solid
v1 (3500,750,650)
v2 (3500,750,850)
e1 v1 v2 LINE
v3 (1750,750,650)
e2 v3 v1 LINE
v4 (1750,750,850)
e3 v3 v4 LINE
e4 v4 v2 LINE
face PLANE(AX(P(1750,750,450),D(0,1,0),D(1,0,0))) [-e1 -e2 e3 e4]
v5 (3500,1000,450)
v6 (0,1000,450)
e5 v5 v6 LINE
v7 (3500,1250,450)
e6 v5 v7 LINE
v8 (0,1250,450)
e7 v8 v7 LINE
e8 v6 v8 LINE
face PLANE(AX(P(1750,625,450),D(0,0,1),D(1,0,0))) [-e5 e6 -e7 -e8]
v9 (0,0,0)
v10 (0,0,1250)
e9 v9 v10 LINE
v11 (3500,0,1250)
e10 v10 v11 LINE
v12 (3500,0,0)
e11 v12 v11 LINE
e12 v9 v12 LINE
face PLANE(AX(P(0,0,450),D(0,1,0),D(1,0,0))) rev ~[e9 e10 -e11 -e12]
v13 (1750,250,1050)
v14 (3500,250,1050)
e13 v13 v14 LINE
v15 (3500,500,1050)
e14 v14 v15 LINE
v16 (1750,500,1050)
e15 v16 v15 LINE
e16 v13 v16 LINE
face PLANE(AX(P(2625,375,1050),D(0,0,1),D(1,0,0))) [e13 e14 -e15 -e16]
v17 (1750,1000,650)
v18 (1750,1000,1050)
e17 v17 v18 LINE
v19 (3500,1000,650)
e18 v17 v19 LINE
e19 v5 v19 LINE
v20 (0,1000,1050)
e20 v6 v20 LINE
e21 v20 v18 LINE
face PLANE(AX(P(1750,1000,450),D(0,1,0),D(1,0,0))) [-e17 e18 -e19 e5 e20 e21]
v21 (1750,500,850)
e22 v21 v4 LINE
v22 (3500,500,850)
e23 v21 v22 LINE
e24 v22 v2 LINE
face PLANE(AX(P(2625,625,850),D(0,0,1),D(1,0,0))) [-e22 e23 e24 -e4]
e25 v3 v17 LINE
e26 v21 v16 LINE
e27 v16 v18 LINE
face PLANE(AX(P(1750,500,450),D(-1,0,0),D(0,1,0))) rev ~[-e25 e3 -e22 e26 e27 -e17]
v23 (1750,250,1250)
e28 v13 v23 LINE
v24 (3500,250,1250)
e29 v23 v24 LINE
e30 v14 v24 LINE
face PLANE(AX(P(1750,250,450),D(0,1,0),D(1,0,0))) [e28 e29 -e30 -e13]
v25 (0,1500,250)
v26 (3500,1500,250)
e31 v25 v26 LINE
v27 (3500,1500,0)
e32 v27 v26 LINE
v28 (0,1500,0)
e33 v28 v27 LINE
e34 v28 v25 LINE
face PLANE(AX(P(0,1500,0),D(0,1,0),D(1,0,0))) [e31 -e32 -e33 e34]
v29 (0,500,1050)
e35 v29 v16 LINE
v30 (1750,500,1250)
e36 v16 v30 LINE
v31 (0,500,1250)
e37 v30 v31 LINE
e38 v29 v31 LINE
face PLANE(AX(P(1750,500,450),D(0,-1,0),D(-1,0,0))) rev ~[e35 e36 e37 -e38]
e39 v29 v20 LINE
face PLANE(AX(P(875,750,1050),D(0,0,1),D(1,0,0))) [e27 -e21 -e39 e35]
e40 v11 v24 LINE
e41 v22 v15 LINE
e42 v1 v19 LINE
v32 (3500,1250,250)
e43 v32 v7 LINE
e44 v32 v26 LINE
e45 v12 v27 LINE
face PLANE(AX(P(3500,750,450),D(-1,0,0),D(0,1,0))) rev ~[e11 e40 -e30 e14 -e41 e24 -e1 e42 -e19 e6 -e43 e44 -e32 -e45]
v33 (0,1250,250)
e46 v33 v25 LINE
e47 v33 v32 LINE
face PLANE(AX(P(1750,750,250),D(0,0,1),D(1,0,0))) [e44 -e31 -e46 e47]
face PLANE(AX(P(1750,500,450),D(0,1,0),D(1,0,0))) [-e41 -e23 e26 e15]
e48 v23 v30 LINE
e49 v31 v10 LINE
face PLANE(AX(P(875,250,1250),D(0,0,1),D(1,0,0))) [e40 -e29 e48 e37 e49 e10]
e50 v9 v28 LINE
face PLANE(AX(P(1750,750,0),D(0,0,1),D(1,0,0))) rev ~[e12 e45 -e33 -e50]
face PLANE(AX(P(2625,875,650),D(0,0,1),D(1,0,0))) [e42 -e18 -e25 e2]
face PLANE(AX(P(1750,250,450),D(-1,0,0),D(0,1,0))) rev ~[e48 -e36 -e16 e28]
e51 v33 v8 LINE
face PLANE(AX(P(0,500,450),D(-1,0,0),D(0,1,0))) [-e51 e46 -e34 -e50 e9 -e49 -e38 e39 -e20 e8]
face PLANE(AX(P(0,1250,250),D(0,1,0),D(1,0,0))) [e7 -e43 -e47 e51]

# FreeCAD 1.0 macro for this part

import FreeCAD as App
import Part
import Sketcher
Q = App.Units.Quantity

doc = App.newDocument("Part")
body = doc.addObject("PartDesign::Body", "Body")

sketch1 = body.newObject("Sketcher::SketchObject", "Sketch")
sketch1.AttachmentSupport = (doc.getObject("XY_Plane"), [""])
sketch1.MapMode = "FlatFace"
sketch1.addGeometry([
    Part.LineSegment(App.Vector(0, 1500, 0), App.Vector(0, 0, 0)),
    Part.LineSegment(App.Vector(0, 0, 0), App.Vector(3500, 0, 0)),
    Part.LineSegment(App.Vector(3500, 0, 0), App.Vector(3500, 1500, 0)),
    Part.LineSegment(App.Vector(3500, 1500, 0), App.Vector(0, 1500, 0)),
], False)
sketch1.addConstraint([
    Sketcher.Constraint("Coincident", 0, 2, 1, 1),
    Sketcher.Constraint("Coincident", 1, 2, 2, 1),
    Sketcher.Constraint("Coincident", 2, 2, 3, 1),
    Sketcher.Constraint("Coincident", 3, 2, 0, 1),
    Sketcher.Constraint("Vertical", 0),
    Sketcher.Constraint("Horizontal", 1),
    Sketcher.Constraint("Vertical", 2),
    Sketcher.Constraint("Horizontal", 3),
    Sketcher.Constraint("Coincident", 0, 2, -1, 1),
    Sketcher.Constraint("DistanceX", 1, 1, 1, 2, Q("3500 mm")),
    Sketcher.Constraint("DistanceY", 0, 2, 0, 1, Q("1500 mm")),
])
pad1 = body.newObject("PartDesign::Pad", "Pad")
pad1.Profile = sketch1
pad1.Length = 250

sketch2 = body.newObject("Sketcher::SketchObject", "Sketch001")
sketch2.AttachmentSupport = (doc.getObject("XY_Plane"), [""])
sketch2.MapMode = "FlatFace"
sketch2.AttachmentOffset = App.Placement(App.Vector(0, 0, 250), App.Rotation())
sketch2.addGeometry([
    Part.LineSegment(App.Vector(0, 1250, 0), App.Vector(0, 0, 0)),
    Part.LineSegment(App.Vector(0, 0, 0), App.Vector(3500, 0, 0)),
    Part.LineSegment(App.Vector(3500, 0, 0), App.Vector(3500, 1250, 0)),
    Part.LineSegment(App.Vector(3500, 1250, 0), App.Vector(0, 1250, 0)),
], False)
sketch2.addConstraint([
    Sketcher.Constraint("Coincident", 0, 2, 1, 1),
    Sketcher.Constraint("Coincident", 1, 2, 2, 1),
    Sketcher.Constraint("Coincident", 2, 2, 3, 1),
    Sketcher.Constraint("Coincident", 3, 2, 0, 1),
    Sketcher.Constraint("Vertical", 0),
    Sketcher.Constraint("Horizontal", 1),
    Sketcher.Constraint("Vertical", 2),
    Sketcher.Constraint("Horizontal", 3),
    Sketcher.Constraint("Coincident", 0, 2, -1, 1),
    Sketcher.Constraint("DistanceX", 1, 1, 1, 2, Q("3500 mm")),
    Sketcher.Constraint("DistanceY", 0, 2, 0, 1, Q("1250 mm")),
])
pad2 = body.newObject("PartDesign::Pad", "Pad001")
pad2.Profile = sketch2
pad2.Length = 200

sketch3 = body.newObject("Sketcher::SketchObject", "Sketch002")
sketch3.AttachmentSupport = (doc.getObject("XY_Plane"), [""])
sketch3.MapMode = "FlatFace"
sketch3.AttachmentOffset = App.Placement(App.Vector(0, 0, 450), App.Rotation())
sketch3.addGeometry([
    Part.LineSegment(App.Vector(0, 500, 0), App.Vector(0, 0, 0)),
    Part.LineSegment(App.Vector(0, 0, 0), App.Vector(3500, 0, 0)),
    Part.LineSegment(App.Vector(3500, 0, 0), App.Vector(3500, 250, 0)),
    Part.LineSegment(App.Vector(3500, 250, 0), App.Vector(1750, 250, 0)),
    Part.LineSegment(App.Vector(1750, 250, 0), App.Vector(1750, 500, 0)),
    Part.LineSegment(App.Vector(1750, 500, 0), App.Vector(0, 500, 0)),
], False)
sketch3.addConstraint([
    Sketcher.Constraint("Coincident", 0, 2, 1, 1),
    Sketcher.Constraint("Coincident", 1, 2, 2, 1),
    Sketcher.Constraint("Coincident", 2, 2, 3, 1),
    Sketcher.Constraint("Coincident", 3, 2, 4, 1),
    Sketcher.Constraint("Coincident", 4, 2, 5, 1),
    Sketcher.Constraint("Coincident", 5, 2, 0, 1),
    Sketcher.Constraint("Vertical", 0),
    Sketcher.Constraint("Horizontal", 1),
    Sketcher.Constraint("Vertical", 2),
    Sketcher.Constraint("Horizontal", 3),
    Sketcher.Constraint("Vertical", 4),
    Sketcher.Constraint("Horizontal", 5),
    Sketcher.Constraint("Coincident", 0, 2, -1, 1),
    Sketcher.Constraint("Equal", 3, 5),
    Sketcher.Constraint("Equal", 2, 4),
    Sketcher.Constraint("DistanceX", 1, 1, 1, 2, Q("3500 mm")),
    Sketcher.Constraint("DistanceY", 0, 2, 0, 1, Q("500 mm")),
])
pad3 = body.newObject("PartDesign::Pad", "Pad002")
pad3.Profile = sketch3
pad3.Length = 800

sketch4 = body.newObject("Sketcher::SketchObject", "Sketch003")
sketch4.AttachmentSupport = (doc.getObject("XY_Plane"), [""])
sketch4.MapMode = "FlatFace"
sketch4.AttachmentOffset = App.Placement(App.Vector(0, 0, 450), App.Rotation())
sketch4.addGeometry([
    Part.LineSegment(App.Vector(0, 1000, 0), App.Vector(0, 500, 0)),
    Part.LineSegment(App.Vector(0, 500, 0), App.Vector(1750, 500, 0)),
    Part.LineSegment(App.Vector(1750, 500, 0), App.Vector(1750, 1000, 0)),
    Part.LineSegment(App.Vector(1750, 1000, 0), App.Vector(0, 1000, 0)),
    Part.LineSegment(App.Vector(1750, 500, 0), App.Vector(1750, 250, 0)),
    Part.LineSegment(App.Vector(1750, 250, 0), App.Vector(3500, 250, 0)),
    Part.LineSegment(App.Vector(3500, 250, 0), App.Vector(3500, 500, 0)),
    Part.LineSegment(App.Vector(3500, 500, 0), App.Vector(1750, 500, 0)),
], False)
sketch4.addConstraint([
    Sketcher.Constraint("Coincident", 0, 2, 1, 1),
    Sketcher.Constraint("Coincident", 1, 2, 2, 1),
    Sketcher.Constraint("Coincident", 2, 2, 3, 1),
    Sketcher.Constraint("Coincident", 3, 2, 0, 1),
    Sketcher.Constraint("Coincident", 4, 2, 5, 1),
    Sketcher.Constraint("Coincident", 5, 2, 6, 1),
    Sketcher.Constraint("Coincident", 6, 2, 7, 1),
    Sketcher.Constraint("Coincident", 7, 2, 4, 1),
    Sketcher.Constraint("Vertical", 0),
    Sketcher.Constraint("Horizontal", 1),
    Sketcher.Constraint("Vertical", 2),
    Sketcher.Constraint("Horizontal", 3),
    Sketcher.Constraint("Vertical", 4),
    Sketcher.Constraint("Horizontal", 5),
    Sketcher.Constraint("Vertical", 6),
    Sketcher.Constraint("Horizontal", 7),
    Sketcher.Constraint("Coincident", 7, 2, 1, 2),
    Sketcher.Constraint("PointOnObject", 0, 2, -2),
    Sketcher.Constraint("Equal", 3, 5),
    Sketcher.Constraint("DistanceX", 1, 1, 1, 2, Q("1750 mm")),
    Sketcher.Constraint("DistanceY", 0, 2, 0, 1, Q("500 mm")),
    Sketcher.Constraint("DistanceY", 4, 2, 4, 1, Q("250 mm")),
    Sketcher.Constraint("DistanceY", -1, 1, 0, 2, Q("500 mm")),
])
pad4 = body.newObject("PartDesign::Pad", "Pad003")
pad4.Profile = sketch4
pad4.Length = 600

sketch5 = body.newObject("Sketcher::SketchObject", "Sketch004")
sketch5.AttachmentSupport = (doc.getObject("XY_Plane"), [""])
sketch5.MapMode = "FlatFace"
sketch5.AttachmentOffset = App.Placement(App.Vector(0, 0, 450), App.Rotation())
sketch5.addGeometry([
    Part.LineSegment(App.Vector(1750, 750, 0), App.Vector(1750, 500, 0)),
    Part.LineSegment(App.Vector(1750, 500, 0), App.Vector(3500, 500, 0)),
    Part.LineSegment(App.Vector(3500, 500, 0), App.Vector(3500, 750, 0)),
    Part.LineSegment(App.Vector(3500, 750, 0), App.Vector(1750, 750, 0)),
], False)
sketch5.addConstraint([
    Sketcher.Constraint("Coincident", 0, 2, 1, 1),
    Sketcher.Constraint("Coincident", 1, 2, 2, 1),
    Sketcher.Constraint("Coincident", 2, 2, 3, 1),
    Sketcher.Constraint("Coincident", 3, 2, 0, 1),
    Sketcher.Constraint("Vertical", 0),
    Sketcher.Constraint("Horizontal", 1),
    Sketcher.Constraint("Vertical", 2),
    Sketcher.Constraint("Horizontal", 3),
    Sketcher.Constraint("DistanceX", 1, 1, 1, 2, Q("1750 mm")),
    Sketcher.Constraint("DistanceY", 0, 2, 0, 1, Q("250 mm")),
    Sketcher.Constraint("DistanceX", -1, 1, 0, 2, Q("1750 mm")),
    Sketcher.Constraint("DistanceY", -1, 1, 0, 2, Q("500 mm")),
])
pad5 = body.newObject("PartDesign::Pad", "Pad004")
pad5.Profile = sketch5
pad5.Length = 400

sketch6 = body.newObject("Sketcher::SketchObject", "Sketch005")
sketch6.AttachmentSupport = (doc.getObject("XY_Plane"), [""])
sketch6.MapMode = "FlatFace"
sketch6.AttachmentOffset = App.Placement(App.Vector(0, 0, 450), App.Rotation())
sketch6.addGeometry([
    Part.LineSegment(App.Vector(1750, 1000, 0), App.Vector(1750, 750, 0)),
    Part.LineSegment(App.Vector(1750, 750, 0), App.Vector(3500, 750, 0)),
    Part.LineSegment(App.Vector(3500, 750, 0), App.Vector(3500, 1000, 0)),
    Part.LineSegment(App.Vector(3500, 1000, 0), App.Vector(1750, 1000, 0)),
], False)
sketch6.addConstraint([
    Sketcher.Constraint("Coincident", 0, 2, 1, 1),
    Sketcher.Constraint("Coincident", 1, 2, 2, 1),
    Sketcher.Constraint("Coincident", 2, 2, 3, 1),
    Sketcher.Constraint("Coincident", 3, 2, 0, 1),
    Sketcher.Constraint("Vertical", 0),
    Sketcher.Constraint("Horizontal", 1),
    Sketcher.Constraint("Vertical", 2),
    Sketcher.Constraint("Horizontal", 3),
    Sketcher.Constraint("DistanceX", 1, 1, 1, 2, Q("1750 mm")),
    Sketcher.Constraint("DistanceY", 0, 2, 0, 1, Q("250 mm")),
    Sketcher.Constraint("DistanceX", -1, 1, 0, 2, Q("1750 mm")),
    Sketcher.Constraint("DistanceY", -1, 1, 0, 2, Q("750 mm")),
])
pad6 = body.newObject("PartDesign::Pad", "Pad005")
pad6.Profile = sketch6
pad6.Length = 200

doc.recompute()
